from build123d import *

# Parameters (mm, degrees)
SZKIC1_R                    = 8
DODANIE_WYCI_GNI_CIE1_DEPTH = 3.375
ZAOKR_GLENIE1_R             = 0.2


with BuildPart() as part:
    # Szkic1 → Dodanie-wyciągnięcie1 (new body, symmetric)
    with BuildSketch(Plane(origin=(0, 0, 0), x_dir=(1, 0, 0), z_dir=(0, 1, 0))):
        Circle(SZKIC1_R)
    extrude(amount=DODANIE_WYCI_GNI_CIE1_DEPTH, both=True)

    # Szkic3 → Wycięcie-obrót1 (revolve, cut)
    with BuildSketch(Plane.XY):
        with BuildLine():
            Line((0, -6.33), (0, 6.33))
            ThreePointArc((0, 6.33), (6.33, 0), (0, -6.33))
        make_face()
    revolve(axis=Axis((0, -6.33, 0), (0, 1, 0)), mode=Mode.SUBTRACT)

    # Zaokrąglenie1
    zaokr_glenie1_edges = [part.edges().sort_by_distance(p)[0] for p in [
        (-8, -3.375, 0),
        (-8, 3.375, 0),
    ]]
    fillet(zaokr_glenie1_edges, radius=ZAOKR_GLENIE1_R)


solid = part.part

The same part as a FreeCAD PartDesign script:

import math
import FreeCAD as App
import Part
import Sketcher

V = App.Vector


def edges_at(feature, points):
    """Names of the edges that pass closest to the given points."""
    edges = feature.Shape.Edges
    near = lambda p: min(range(len(edges)), key=lambda i: edges[i].distToShape(Part.Vertex(*p))[0])
    return sorted({f"Edge{near(p) + 1}" for p in points})

doc = App.newDocument("Part")
body = doc.addObject("PartDesign::Body", "Body")

# Sketch on XZ plane
sketch1 = body.newObject("Sketcher::SketchObject", "Sketch")
sketch1.AttachmentSupport = (doc.getObject("XZ_Plane"), [""])
sketch1.MapMode = "FlatFace"
sketch1.addGeometry(Part.Circle(V(0, 0, 0), V(0, 0, 1), 8), False)
sketch1.addConstraint([
    Sketcher.Constraint("Coincident", 0, 3, -1, 1),
    Sketcher.Constraint("Diameter", 0, 16.0),
])
pad1 = body.newObject("PartDesign::Pad", "Pad")
pad1.Profile = sketch1
pad1.Length = 6.75
pad1.Midplane = True

# Sketch on XY plane
sketch2 = body.newObject("Sketcher::SketchObject", "Sketch001")
sketch2.AttachmentSupport = (doc.getObject("XY_Plane"), [""])
sketch2.MapMode = "FlatFace"
sketch2.addGeometry([
    Part.LineSegment(V(0, 6.33, 0), V(0, -6.33, 0)),
    Part.ArcOfCircle(Part.Circle(V(0, 0, 0), V(0, 0, 1), 6.33), math.radians(-90), math.radians(90)),
], False)
sketch2.addConstraint([
    Sketcher.Constraint("Coincident", 0, 1, 1, 2),
    Sketcher.Constraint("Coincident", 1, 1, 0, 2),
    Sketcher.Constraint("Vertical", 0),
    Sketcher.Constraint("Coincident", 1, 3, -1, 1),
    Sketcher.Constraint("PointOnObject", 0, 1, -2),
    Sketcher.Constraint("Radius", 1, 6.33),
])
groove = body.newObject("PartDesign::Groove", "Groove")
groove.Profile = sketch2
groove.ReferenceAxis = (sketch2, ["V_Axis"])
groove.Angle = 360
doc.recompute()

fillet = body.newObject("PartDesign::Fillet", "Fillet")
fillet.Base = (groove, edges_at(groove, [(-8, -3.375, 0), (-8, 3.375, 0)]))
fillet.Radius = 0.2

doc.recompute()
